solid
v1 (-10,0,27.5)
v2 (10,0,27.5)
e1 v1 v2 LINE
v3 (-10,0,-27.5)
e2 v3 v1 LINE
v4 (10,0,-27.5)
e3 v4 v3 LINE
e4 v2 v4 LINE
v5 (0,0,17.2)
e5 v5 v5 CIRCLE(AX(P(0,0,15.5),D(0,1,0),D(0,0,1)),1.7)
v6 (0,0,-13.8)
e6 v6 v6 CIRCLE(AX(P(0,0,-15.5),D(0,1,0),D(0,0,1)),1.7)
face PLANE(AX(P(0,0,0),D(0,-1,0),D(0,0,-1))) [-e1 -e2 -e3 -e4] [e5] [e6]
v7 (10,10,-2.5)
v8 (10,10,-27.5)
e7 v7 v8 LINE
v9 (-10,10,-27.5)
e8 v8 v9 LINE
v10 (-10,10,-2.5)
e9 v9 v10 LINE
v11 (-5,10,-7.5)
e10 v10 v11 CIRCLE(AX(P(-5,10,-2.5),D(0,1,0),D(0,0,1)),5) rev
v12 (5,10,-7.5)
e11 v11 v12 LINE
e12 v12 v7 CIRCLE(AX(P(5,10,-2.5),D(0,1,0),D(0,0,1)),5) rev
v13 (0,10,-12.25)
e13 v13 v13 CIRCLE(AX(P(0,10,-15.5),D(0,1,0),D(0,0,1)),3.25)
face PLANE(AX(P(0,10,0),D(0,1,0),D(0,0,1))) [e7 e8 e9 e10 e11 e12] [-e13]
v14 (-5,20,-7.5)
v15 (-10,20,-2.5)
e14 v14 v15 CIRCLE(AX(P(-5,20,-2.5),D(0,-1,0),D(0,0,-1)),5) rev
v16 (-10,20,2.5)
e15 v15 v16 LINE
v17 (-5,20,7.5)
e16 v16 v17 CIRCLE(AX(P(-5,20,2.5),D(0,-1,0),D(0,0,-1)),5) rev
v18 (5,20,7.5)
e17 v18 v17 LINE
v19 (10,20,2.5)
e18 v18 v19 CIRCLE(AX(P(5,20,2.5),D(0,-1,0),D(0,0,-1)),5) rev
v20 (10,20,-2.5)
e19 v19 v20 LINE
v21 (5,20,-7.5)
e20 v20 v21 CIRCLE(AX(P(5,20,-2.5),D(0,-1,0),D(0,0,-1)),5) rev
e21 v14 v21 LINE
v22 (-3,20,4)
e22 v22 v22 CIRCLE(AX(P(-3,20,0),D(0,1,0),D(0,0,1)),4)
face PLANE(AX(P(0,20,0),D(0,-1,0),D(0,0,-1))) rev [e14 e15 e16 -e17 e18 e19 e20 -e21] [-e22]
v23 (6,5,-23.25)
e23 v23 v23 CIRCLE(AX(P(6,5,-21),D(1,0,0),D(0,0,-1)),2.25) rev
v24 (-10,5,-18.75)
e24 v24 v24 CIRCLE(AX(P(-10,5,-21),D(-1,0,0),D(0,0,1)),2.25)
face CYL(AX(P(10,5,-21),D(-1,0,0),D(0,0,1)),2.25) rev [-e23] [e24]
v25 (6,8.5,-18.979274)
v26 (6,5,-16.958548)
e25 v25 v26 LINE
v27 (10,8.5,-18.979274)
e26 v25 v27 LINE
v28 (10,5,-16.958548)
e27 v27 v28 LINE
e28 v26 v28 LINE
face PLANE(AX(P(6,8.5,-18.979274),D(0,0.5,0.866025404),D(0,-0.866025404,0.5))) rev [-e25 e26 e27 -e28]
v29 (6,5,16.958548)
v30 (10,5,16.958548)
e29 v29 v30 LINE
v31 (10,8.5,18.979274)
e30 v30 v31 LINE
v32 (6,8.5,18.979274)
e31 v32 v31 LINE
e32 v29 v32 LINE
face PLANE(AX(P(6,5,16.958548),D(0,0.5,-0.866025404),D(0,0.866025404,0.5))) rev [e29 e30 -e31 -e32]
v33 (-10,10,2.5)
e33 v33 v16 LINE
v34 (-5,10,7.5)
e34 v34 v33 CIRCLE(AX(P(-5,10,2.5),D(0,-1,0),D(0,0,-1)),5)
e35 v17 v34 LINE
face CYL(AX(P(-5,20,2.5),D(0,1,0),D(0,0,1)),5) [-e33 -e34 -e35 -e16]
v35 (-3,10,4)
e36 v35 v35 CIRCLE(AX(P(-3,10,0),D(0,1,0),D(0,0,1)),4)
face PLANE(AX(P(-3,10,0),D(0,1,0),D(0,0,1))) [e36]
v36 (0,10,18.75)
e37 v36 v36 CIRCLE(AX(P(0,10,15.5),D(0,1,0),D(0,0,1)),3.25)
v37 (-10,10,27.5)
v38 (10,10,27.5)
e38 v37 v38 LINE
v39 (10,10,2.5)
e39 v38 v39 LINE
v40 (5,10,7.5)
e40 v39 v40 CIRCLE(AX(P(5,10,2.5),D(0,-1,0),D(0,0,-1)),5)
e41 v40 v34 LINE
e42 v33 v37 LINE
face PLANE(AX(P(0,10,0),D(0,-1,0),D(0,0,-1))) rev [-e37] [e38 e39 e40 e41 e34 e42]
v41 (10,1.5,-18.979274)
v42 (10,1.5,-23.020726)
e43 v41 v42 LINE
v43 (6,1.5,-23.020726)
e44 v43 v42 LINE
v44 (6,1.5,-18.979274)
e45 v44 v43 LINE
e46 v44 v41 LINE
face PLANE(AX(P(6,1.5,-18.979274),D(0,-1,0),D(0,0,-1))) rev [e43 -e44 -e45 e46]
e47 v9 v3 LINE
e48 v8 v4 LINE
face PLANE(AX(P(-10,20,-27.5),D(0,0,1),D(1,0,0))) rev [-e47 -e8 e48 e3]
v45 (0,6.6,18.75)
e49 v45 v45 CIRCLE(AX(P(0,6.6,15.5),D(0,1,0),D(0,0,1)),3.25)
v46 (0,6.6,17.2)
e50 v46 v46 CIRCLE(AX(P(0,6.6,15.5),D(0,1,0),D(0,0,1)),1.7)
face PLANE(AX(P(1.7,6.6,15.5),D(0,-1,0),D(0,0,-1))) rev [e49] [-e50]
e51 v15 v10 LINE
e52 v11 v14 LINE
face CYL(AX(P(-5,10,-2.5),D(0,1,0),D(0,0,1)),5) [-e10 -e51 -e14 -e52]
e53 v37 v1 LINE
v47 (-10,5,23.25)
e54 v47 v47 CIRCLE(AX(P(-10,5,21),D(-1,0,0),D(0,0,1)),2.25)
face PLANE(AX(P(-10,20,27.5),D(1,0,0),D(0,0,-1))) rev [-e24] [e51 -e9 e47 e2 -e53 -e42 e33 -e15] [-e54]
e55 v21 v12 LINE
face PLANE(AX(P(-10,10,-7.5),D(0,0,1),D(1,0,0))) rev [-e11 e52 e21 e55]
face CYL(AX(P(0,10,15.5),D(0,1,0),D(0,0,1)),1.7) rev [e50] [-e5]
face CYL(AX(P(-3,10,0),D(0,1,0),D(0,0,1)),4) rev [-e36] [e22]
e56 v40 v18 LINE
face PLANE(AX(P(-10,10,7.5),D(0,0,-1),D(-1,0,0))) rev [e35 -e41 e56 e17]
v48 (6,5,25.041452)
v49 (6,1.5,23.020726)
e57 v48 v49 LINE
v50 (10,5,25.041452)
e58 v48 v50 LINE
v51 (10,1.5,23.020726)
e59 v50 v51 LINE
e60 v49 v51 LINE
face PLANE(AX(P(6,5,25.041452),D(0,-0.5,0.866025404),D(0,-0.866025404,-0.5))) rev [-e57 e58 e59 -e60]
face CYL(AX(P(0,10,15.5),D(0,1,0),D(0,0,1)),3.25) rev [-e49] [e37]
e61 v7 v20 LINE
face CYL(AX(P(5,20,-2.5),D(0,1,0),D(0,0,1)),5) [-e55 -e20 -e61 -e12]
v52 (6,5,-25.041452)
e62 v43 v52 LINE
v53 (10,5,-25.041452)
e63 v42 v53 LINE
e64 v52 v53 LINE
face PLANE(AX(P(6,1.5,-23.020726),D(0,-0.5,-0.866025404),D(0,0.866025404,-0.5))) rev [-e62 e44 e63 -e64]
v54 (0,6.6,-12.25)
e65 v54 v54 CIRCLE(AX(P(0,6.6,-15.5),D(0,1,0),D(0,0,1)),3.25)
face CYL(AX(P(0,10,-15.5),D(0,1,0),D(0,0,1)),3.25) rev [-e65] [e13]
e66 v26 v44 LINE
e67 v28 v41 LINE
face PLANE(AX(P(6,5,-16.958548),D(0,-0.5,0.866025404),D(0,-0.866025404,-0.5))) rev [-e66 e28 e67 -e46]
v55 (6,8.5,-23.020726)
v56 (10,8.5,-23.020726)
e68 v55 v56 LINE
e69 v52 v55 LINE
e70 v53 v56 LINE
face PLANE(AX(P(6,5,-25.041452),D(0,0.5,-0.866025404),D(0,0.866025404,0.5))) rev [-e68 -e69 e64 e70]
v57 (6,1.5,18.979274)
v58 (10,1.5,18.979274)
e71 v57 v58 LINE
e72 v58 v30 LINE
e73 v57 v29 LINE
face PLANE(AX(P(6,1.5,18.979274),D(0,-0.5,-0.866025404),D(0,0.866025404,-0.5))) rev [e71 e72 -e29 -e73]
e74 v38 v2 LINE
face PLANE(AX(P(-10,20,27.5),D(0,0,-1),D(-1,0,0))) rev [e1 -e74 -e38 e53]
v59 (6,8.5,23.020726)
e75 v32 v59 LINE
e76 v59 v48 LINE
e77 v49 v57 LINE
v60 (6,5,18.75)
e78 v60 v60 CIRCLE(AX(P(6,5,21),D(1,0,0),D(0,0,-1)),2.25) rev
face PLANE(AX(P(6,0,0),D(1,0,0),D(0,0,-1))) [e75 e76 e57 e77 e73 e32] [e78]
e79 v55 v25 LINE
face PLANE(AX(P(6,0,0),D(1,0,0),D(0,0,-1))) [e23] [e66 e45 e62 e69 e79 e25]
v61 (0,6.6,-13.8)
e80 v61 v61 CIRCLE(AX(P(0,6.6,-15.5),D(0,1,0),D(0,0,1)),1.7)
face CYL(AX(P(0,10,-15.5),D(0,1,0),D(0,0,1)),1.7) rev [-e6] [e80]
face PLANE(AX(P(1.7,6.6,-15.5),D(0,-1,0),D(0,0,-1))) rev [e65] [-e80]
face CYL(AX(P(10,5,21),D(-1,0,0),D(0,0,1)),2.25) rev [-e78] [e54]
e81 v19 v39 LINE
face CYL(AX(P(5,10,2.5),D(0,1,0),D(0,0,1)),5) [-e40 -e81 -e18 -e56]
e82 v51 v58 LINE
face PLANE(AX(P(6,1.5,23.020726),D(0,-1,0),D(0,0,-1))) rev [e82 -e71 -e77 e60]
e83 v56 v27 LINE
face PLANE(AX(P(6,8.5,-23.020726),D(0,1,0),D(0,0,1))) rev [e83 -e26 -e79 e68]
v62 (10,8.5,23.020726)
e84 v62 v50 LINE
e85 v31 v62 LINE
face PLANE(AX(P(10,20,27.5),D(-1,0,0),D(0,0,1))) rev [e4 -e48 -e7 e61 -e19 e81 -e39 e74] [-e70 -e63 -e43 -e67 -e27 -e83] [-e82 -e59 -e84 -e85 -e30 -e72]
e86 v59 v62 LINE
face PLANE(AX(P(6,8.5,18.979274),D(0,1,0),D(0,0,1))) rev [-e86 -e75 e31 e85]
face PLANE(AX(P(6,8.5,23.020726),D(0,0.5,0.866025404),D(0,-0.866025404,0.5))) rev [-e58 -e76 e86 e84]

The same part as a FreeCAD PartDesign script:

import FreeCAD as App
import Part
import Sketcher
from FreeCAD import Vector
Q = App.Units.Quantity


def edges_at(feature, points):
    """Names of the edges that pass closest to the given points."""
    edges = feature.Shape.Edges
    near = lambda p: min(range(len(edges)), key=lambda i: edges[i].distToShape(Part.Vertex(*p))[0])
    return sorted({f"Edge{near(p) + 1}" for p in points})


def add_polygon(sketch, points):
    """Adds a closed chain of lines whose ends are joined by coincident constraints."""
    first, n = sketch.GeometryCount, len(points)
    for a, b in zip(points, points[1:] + points[:1]):
        sketch.addGeometry(Part.LineSegment(App.Vector(*a, 0), App.Vector(*b, 0)), False)
    for i in range(n):
        sketch.addConstraint(Sketcher.Constraint("Coincident", first + i, 2, first + (i + 1) % n, 1))

doc = App.newDocument("Part")
params = doc.addObject("Spreadsheet::Sheet", "Params")
for row, (alias, value) in enumerate([
    ("sketch1_width", "20 mm"),
    ("sketch1_height", "55 mm"),
    ("pad1_length", "20 mm"),
    ("sketch2_diameter", "8 mm"),
    ("pocket1_length", "10 mm"),
    ("sketch3_width", "20 mm"),
    ("pocket2_length", "10 mm"),
    ("sketch4_diameter", "3.4 mm"),
    ("hole_diameter", "3.4 mm"),
    ("hole_cbore_diameter", "6.5 mm"),
    ("hole_cbore_depth", "3.4 mm"),
    ("fillet_radius", "5 mm"),
    ("sketch5_diameter", "4.5 mm"),
    ("pocket4_length", "4 mm"),
], start=1):
    params.set(f"A{row}", alias)
    params.set(f"B{row}", "=" + value)
    params.setAlias(f"B{row}", alias)

body = doc.addObject("PartDesign::Body", "Body")

sketch1 = body.newObject("Sketcher::SketchObject", "Sketch")
sketch1.AttachmentSupport = (doc.getObject("XZ_Plane"), [""])
sketch1.MapMode = "FlatFace"
add_polygon(sketch1, [(-10, -27.5), (-10, 27.5), (10, 27.5), (10, -27.5)])
sketch1.addConstraint(Sketcher.Constraint("Vertical", 0))
sketch1.addConstraint(Sketcher.Constraint("Horizontal", 1))
sketch1.addConstraint(Sketcher.Constraint("Vertical", 2))
sketch1.addConstraint(Sketcher.Constraint("Horizontal", 3))
sketch1.addConstraint(Sketcher.Constraint("Symmetric", 0, 2, 2, 2, -1, 1))
sketch1.addConstraint(Sketcher.Constraint("DistanceX", 1, 1, 1, 2, Q("20 mm")))
sketch1.addConstraint(Sketcher.Constraint("DistanceY", 0, 1, 0, 2, Q("55 mm")))
sketch1.setExpression("Constraints[9]", "Params.sketch1_width")
sketch1.setExpression("Constraints[10]", "Params.sketch1_height")
pad1 = body.newObject("PartDesign::Pad", "Pad")
pad1.Profile = sketch1
pad1.setExpression("Length", "Params.pad1_length")
pad1.Reversed = True

sketch2 = body.newObject("Sketcher::SketchObject", "Sketch001")
sketch2.AttachmentSupport = (doc.getObject("XZ_Plane"), [""])
sketch2.MapMode = "FlatFace"
sketch2.AttachmentOffset = App.Placement(Vector(0, 0, -20), App.Rotation())
sketch2.addGeometry(Part.Circle(Vector(-3, 0, 0), Vector(0, 0, 1), 4), False)
sketch2.addConstraint(Sketcher.Constraint("PointOnObject", 0, 3, -1))
sketch2.addConstraint(Sketcher.Constraint("Diameter", 0, Q("8 mm")))
sketch2.addConstraint(Sketcher.Constraint("DistanceX", 0, 3, -1, 1, Q("3 mm")))
sketch2.setExpression("Constraints[1]", "Params.sketch2_diameter")
pocket1 = body.newObject("PartDesign::Pocket", "Pocket")
pocket1.Profile = sketch2
pocket1.setExpression("Length", "Params.pocket1_length")
pocket1.Reversed = True

sketch3 = body.newObject("Sketcher::SketchObject", "Sketch002")
sketch3.AttachmentSupport = (doc.getObject("XZ_Plane"), [""])
sketch3.MapMode = "FlatFace"
sketch3.AttachmentOffset = App.Placement(Vector(0, 0, -20), App.Rotation())
add_polygon(sketch3, [(-10, 7.5), (-10, 27.5), (10, 27.5), (10, 7.5)])
add_polygon(sketch3, [(-10, -27.5), (-10, -7.5), (10, -7.5), (10, -27.5)])
sketch3.addConstraint(Sketcher.Constraint("Vertical", 0))
sketch3.addConstraint(Sketcher.Constraint("Horizontal", 1))
sketch3.addConstraint(Sketcher.Constraint("Vertical", 2))
sketch3.addConstraint(Sketcher.Constraint("Horizontal", 3))
sketch3.addConstraint(Sketcher.Constraint("Vertical", 4))
sketch3.addConstraint(Sketcher.Constraint("Horizontal", 5))
sketch3.addConstraint(Sketcher.Constraint("Vertical", 6))
sketch3.addConstraint(Sketcher.Constraint("Horizontal", 7))
sketch3.addConstraint(Sketcher.Constraint("Symmetric", 2, 2, 4, 2, -1, 1))
sketch3.addConstraint(Sketcher.Constraint("Symmetric", 0, 2, 6, 2, -1, 1))
sketch3.addConstraint(Sketcher.Constraint("Vertical", 3, 2, 4, 2))
sketch3.addConstraint(Sketcher.Constraint("Equal", 7, 0))
sketch3.addConstraint(Sketcher.Constraint("DistanceX", 1, 1, 1, 2, Q("20 mm")))
sketch3.addConstraint(Sketcher.Constraint("DistanceY", 4, 2, 3, 2, Q("15 mm")))
sketch3.setExpression("Constraints[20]", "Params.sketch3_width")
pocket2 = body.newObject("PartDesign::Pocket", "Pocket001")
pocket2.Profile = sketch3
pocket2.setExpression("Length", "Params.pocket2_length")
pocket2.Reversed = True

sketch4 = body.newObject("Sketcher::SketchObject", "Sketch003")
sketch4.AttachmentSupport = (doc.getObject("XZ_Plane"), [""])
sketch4.MapMode = "FlatFace"
sketch4.AttachmentOffset = App.Placement(Vector(0, 0, -10), App.Rotation())
sketch4.addGeometry(Part.Circle(Vector(0, 15.5, 0), Vector(0, 0, 1), 1.7), False)
sketch4.addGeometry(Part.Circle(Vector(0, -15.5, 0), Vector(0, 0, 1), 1.7), False)
sketch4.addConstraint(Sketcher.Constraint("Equal", 0, 1))
sketch4.addConstraint(Sketcher.Constraint("Symmetric", 0, 3, 1, 3, -1, 1))
sketch4.addConstraint(Sketcher.Constraint("PointOnObject", 0, 3, -2))
sketch4.addConstraint(Sketcher.Constraint("Diameter", 0, Q("3.4 mm")))
sketch4.addConstraint(Sketcher.Constraint("DistanceY", 1, 3, 0, 3, Q("31 mm")))
sketch4.setExpression("Constraints[3]", "Params.sketch4_diameter")
doc.recompute()
hole = body.newObject("PartDesign::Hole", "Hole")
hole.Profile = sketch4
hole.ThreadType = "None"
hole.setExpression("Diameter", "Params.hole_diameter")
hole.DepthType = "ThroughAll"
hole.HoleCutType = "Counterbore"
hole.setExpression("HoleCutDiameter", "Params.hole_cbore_diameter")
hole.setExpression("HoleCutDepth", "Params.hole_cbore_depth")
hole.Reversed = True
doc.recompute()

fillet = body.newObject("PartDesign::Fillet", "Fillet")
fillet.Base = (hole, edges_at(hole, [
    (-10, 15, 7.5),
    (10, 15, 7.5),
    (-10, 15, -7.5),
    (10, 15, -7.5),
]))
fillet.setExpression("Radius", "Params.fillet_radius")

sketch5 = body.newObject("Sketcher::SketchObject", "Sketch004")
sketch5.AttachmentSupport = (doc.getObject("YZ_Plane"), [""])
sketch5.MapMode = "FlatFace"
sketch5.AttachmentOffset = App.Placement(Vector(0, 0, -10), App.Rotation())
sketch5.addGeometry(Part.Circle(Vector(5, -21, 0), Vector(0, 0, 1), 2.25), False)
sketch5.addGeometry(Part.Circle(Vector(5, 21, 0), Vector(0, 0, 1), 2.25), False)
sketch5.addConstraint(Sketcher.Constraint("Equal", 0, 1))
sketch5.addConstraint(Sketcher.Constraint("Symmetric", 0, 3, 1, 3, -1))
sketch5.addConstraint(Sketcher.Constraint("Diameter", 0, Q("4.5 mm")))
sketch5.addConstraint(Sketcher.Constraint("DistanceX", -1, 1, 0, 3, Q("5 mm")))
sketch5.addConstraint(Sketcher.Constraint("DistanceY", 0, 3, -1, 1, Q("21 mm")))
sketch5.setExpression("Constraints[2]", "Params.sketch5_diameter")
pocket3 = body.newObject("PartDesign::Pocket", "Pocket002")
pocket3.Profile = sketch5
pocket3.Type = "ThroughAll"
pocket3.Reversed = True

sketch6 = body.newObject("Sketcher::SketchObject", "Sketch005")
sketch6.AttachmentSupport = (doc.getObject("YZ_Plane"), [""])
sketch6.MapMode = "FlatFace"
sketch6.AttachmentOffset = App.Placement(Vector(0, 0, 10), App.Rotation())
add_polygon(sketch6, [(5, 16.958548), (8.5, 18.979274), (8.5, 23.020726), (5, 25.041452), (1.5, 23.020726), (1.5, 18.979274)])
add_polygon(sketch6, [(5, -16.958548), (1.5, -18.979274), (1.5, -23.020726), (5, -25.041452), (8.5, -23.020726), (8.5, -18.979274)])
sketch6.addConstraint(Sketcher.Constraint("Vertical", 1))
sketch6.addConstraint(Sketcher.Constraint("Vertical", 4))
sketch6.addConstraint(Sketcher.Constraint("Vertical", 7))
sketch6.addConstraint(Sketcher.Constraint("Vertical", 10))
sketch6.addConstraint(Sketcher.Constraint("Symmetric", 4, 2, 6, 2, -1))
sketch6.addConstraint(Sketcher.Constraint("Symmetric", 2, 2, 8, 2, -1))
sketch6.addConstraint(Sketcher.Constraint("Symmetric", 1, 2, 9, 2, -1))
sketch6.addConstraint(Sketcher.Constraint("Symmetric", 5, 2, 11, 2, -1))
sketch6.addConstraint(Sketcher.Constraint("Parallel", 0, 3))
sketch6.addConstraint(Sketcher.Constraint("Parallel", 2, 5))
sketch6.addConstraint(Sketcher.Constraint("Parallel", 3, 6))
sketch6.addConstraint(Sketcher.Constraint("Parallel", 5, 8))
sketch6.addConstraint(Sketcher.Constraint("Parallel", 8, 11))
sketch6.addConstraint(Sketcher.Constraint("Horizontal", 1, 2, 3, 2))
sketch6.addConstraint(Sketcher.Constraint("Horizontal", 0, 2, 4, 2))
sketch6.addConstraint(Sketcher.Constraint("Angle", 0, Q("30 deg")))
sketch6.addConstraint(Sketcher.Constraint("DistanceX", -1, 1, 2, 2, Q("5 mm")))
sketch6.addConstraint(Sketcher.Constraint("DistanceX", 3, 2, 1, 2, Q("7 mm")))
sketch6.addConstraint(Sketcher.Constraint("DistanceY", 6, 2, 3, 2, Q("42 mm")))
sketch6.addConstraint(Sketcher.Constraint("DistanceY", 1, 1, 1, 2, Q("4.041452 mm")))
pocket4 = body.newObject("PartDesign::Pocket", "Pocket003")
pocket4.Profile = sketch6
pocket4.setExpression("Length", "Params.pocket4_length")

doc.recompute()
